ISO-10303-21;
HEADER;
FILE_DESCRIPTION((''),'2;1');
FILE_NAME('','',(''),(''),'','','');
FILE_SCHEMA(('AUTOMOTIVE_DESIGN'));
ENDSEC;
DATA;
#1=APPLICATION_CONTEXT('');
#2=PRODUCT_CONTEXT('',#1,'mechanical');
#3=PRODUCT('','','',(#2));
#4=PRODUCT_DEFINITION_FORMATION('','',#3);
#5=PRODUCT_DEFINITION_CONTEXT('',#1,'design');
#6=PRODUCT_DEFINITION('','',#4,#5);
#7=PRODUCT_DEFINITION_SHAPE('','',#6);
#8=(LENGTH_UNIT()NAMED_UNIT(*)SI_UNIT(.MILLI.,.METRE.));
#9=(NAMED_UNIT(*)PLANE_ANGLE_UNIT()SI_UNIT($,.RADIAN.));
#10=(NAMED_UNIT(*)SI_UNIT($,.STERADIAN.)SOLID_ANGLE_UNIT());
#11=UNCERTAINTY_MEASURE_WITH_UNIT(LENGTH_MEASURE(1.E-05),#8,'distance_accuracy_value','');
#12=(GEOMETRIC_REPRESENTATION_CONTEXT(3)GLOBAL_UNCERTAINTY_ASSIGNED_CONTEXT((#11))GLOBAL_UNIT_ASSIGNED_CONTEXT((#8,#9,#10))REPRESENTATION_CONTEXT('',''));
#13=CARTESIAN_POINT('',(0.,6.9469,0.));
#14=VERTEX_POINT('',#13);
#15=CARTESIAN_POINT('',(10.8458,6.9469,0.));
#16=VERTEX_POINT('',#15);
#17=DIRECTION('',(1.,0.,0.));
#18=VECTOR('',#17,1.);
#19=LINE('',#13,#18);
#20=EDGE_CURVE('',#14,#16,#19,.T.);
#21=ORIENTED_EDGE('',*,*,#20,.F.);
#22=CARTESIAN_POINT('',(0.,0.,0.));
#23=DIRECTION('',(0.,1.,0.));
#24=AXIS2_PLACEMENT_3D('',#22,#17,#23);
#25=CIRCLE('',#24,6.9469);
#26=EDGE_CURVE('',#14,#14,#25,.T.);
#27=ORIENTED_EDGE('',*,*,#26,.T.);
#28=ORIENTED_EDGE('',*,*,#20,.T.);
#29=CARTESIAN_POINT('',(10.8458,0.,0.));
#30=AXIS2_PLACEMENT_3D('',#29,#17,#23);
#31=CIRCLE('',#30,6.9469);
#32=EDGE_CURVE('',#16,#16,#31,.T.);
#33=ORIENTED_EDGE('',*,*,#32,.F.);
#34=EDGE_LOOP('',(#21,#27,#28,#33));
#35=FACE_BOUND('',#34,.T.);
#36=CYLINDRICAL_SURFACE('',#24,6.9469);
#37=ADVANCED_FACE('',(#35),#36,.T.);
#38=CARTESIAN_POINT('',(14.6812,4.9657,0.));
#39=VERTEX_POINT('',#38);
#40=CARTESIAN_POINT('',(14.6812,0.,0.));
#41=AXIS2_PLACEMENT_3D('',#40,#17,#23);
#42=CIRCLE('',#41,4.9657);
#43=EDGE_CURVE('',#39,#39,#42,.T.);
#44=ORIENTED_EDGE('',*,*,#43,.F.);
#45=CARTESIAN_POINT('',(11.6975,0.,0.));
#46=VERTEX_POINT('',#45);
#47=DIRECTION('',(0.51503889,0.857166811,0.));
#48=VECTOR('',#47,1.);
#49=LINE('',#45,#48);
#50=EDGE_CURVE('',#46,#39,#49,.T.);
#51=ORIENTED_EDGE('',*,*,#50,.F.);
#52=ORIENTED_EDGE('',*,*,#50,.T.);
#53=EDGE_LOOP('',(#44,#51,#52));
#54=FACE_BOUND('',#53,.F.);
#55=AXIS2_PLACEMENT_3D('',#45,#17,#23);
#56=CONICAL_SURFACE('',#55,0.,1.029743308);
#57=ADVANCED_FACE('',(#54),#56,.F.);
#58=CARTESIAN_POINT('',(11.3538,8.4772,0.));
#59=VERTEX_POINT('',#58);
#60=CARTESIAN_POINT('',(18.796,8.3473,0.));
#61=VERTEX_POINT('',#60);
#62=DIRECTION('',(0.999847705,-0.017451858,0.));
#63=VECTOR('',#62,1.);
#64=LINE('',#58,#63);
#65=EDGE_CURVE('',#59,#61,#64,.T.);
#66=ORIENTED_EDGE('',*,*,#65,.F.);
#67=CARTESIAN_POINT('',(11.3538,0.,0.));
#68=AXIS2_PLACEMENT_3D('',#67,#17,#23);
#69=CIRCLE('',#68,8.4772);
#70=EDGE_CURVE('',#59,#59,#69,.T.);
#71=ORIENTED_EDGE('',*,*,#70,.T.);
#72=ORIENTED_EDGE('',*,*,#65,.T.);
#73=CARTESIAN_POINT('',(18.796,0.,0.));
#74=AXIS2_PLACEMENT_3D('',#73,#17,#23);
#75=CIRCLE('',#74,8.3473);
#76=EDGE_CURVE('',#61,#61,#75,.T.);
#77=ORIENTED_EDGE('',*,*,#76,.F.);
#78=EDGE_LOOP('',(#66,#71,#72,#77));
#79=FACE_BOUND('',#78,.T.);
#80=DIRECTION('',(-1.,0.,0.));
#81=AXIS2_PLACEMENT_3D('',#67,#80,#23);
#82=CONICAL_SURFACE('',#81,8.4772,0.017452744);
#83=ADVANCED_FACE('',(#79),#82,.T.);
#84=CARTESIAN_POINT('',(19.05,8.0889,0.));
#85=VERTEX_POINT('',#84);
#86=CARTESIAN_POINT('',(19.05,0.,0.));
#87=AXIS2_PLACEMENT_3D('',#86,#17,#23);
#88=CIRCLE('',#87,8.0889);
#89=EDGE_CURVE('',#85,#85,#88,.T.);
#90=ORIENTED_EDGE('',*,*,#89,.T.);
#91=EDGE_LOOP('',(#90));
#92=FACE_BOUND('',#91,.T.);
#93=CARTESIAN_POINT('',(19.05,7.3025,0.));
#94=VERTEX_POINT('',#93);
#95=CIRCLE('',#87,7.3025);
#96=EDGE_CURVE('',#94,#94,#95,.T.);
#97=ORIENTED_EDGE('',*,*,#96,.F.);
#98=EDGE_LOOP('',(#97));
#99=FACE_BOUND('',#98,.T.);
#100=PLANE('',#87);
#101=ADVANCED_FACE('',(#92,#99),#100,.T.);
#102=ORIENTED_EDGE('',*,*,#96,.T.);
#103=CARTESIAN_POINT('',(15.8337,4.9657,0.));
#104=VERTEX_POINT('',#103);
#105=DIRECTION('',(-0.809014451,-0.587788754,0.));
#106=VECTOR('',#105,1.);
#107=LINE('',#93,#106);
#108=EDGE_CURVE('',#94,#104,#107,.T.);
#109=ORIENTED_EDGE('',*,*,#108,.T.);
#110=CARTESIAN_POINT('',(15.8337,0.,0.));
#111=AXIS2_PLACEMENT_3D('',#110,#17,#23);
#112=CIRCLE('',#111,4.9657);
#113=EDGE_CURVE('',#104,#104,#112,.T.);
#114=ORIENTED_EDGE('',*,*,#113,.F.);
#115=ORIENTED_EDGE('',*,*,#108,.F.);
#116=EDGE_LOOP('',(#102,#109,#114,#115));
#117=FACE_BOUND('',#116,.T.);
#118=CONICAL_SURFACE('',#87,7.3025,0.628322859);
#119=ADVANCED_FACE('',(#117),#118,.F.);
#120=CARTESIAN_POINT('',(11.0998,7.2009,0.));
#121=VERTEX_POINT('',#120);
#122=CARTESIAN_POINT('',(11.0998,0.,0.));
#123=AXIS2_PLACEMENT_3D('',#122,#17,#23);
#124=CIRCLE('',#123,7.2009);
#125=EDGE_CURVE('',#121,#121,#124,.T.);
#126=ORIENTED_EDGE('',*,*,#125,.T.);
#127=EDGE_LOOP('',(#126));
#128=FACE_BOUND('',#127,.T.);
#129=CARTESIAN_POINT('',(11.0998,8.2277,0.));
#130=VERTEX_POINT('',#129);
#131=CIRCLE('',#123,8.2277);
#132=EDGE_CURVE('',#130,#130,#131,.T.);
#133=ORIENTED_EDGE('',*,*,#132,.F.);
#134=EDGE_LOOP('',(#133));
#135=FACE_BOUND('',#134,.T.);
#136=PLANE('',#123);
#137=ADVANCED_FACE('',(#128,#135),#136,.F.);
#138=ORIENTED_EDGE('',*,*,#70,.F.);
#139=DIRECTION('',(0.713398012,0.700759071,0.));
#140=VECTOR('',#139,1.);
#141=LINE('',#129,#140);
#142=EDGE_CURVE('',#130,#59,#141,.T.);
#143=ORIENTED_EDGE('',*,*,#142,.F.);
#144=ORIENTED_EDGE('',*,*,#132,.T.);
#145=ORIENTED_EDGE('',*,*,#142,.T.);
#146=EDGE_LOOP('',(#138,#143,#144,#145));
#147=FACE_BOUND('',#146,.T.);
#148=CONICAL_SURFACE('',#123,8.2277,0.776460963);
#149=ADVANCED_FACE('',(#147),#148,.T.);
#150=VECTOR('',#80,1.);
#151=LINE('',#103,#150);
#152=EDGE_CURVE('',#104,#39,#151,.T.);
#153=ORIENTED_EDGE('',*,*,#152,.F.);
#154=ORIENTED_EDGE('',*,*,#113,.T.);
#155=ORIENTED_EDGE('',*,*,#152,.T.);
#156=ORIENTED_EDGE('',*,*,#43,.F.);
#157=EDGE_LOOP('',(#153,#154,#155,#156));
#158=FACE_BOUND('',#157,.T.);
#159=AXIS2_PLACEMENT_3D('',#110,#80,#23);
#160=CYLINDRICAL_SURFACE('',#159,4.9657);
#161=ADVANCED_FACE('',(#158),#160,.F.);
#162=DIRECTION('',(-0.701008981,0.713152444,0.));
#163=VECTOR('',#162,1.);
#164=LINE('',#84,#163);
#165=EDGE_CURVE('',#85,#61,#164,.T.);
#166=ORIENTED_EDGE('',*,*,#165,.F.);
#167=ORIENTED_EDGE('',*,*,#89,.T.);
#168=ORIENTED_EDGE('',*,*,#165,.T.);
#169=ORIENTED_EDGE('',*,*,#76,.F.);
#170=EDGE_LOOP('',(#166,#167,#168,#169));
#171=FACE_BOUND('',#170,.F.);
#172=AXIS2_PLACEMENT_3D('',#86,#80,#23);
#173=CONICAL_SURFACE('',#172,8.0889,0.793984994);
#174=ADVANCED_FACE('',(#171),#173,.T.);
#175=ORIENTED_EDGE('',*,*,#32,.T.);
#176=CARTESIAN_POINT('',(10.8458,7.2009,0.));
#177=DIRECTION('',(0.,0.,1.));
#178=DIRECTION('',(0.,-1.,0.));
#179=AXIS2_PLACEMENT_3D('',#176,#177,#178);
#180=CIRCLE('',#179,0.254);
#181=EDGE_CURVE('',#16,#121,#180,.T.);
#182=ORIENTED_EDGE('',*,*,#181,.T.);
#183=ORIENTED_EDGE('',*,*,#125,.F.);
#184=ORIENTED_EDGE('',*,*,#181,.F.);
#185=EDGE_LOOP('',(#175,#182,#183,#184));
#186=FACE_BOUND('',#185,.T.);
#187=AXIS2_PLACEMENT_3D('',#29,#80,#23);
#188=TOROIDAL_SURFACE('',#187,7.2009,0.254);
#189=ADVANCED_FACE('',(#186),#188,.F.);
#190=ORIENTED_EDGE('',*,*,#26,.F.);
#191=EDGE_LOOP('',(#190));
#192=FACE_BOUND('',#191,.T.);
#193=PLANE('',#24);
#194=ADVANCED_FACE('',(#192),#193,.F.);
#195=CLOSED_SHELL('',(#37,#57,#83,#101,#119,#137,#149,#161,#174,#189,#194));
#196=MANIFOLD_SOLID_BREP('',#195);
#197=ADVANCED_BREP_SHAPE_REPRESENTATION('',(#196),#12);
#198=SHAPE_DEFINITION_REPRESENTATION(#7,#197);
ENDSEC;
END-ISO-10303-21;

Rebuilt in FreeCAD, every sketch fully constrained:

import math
import FreeCAD as App
import Part
import Sketcher
from FreeCAD import Vector
Q = App.Units.Quantity

doc = App.newDocument("Part")
body = doc.addObject("PartDesign::Body", "Body")

# Sketch on XY plane
sketch1 = body.newObject("Sketcher::SketchObject", "Sketch")
sketch1.AttachmentSupport = (doc.getObject("XY_Plane"), [""])
sketch1.MapMode = "FlatFace"
sketch1.addGeometry([
    Part.LineSegment(Vector(0, 6.95, 0), Vector(0, 0, 0)),  # 0
    Part.LineSegment(Vector(0, 0, 0), Vector(11.7, 0, 0)),  # 1
    Part.LineSegment(Vector(11.7, 0, 0), Vector(14.68, 4.97, 0)),  # 2
    Part.LineSegment(Vector(14.68, 4.97, 0), Vector(15.83, 4.97, 0)),  # 3
    Part.LineSegment(Vector(15.83, 4.97, 0), Vector(19.05, 7.3, 0)),  # 4
    Part.LineSegment(Vector(19.05, 7.3, 0), Vector(19.05, 8.09, 0)),  # 5
    Part.LineSegment(Vector(19.05, 8.09, 0), Vector(18.8, 8.35, 0)),  # 6
    Part.LineSegment(Vector(18.8, 8.35, 0), Vector(11.35, 8.48, 0)),  # 7
    Part.LineSegment(Vector(11.35, 8.48, 0), Vector(11.1, 8.23, 0)),  # 8
    Part.LineSegment(Vector(11.1, 8.23, 0), Vector(11.1, 7.2, 0)),  # 9
    Part.ArcOfCircle(Part.Circle(Vector(10.85, 7.2, 0), Vector(0, 0, 1), 0.25), math.radians(-90), math.radians(0)),  # 10
    Part.LineSegment(Vector(10.85, 6.95, 0), Vector(0, 6.95, 0)),  # 11
], False)
sketch1.addConstraint([
    Sketcher.Constraint("Coincident", 0, 2, 1, 1),
    Sketcher.Constraint("Coincident", 1, 2, 2, 1),
    Sketcher.Constraint("Coincident", 2, 2, 3, 1),
    Sketcher.Constraint("Coincident", 3, 2, 4, 1),
    Sketcher.Constraint("Coincident", 4, 2, 5, 1),
    Sketcher.Constraint("Coincident", 5, 2, 6, 1),
    Sketcher.Constraint("Coincident", 6, 2, 7, 1),
    Sketcher.Constraint("Coincident", 7, 2, 8, 1),
    Sketcher.Constraint("Coincident", 8, 2, 9, 1),
    Sketcher.Constraint("Tangent", 9, 2, 10, 2),
    Sketcher.Constraint("Tangent", 10, 1, 11, 1),
    Sketcher.Constraint("Coincident", 11, 2, 0, 1),
    Sketcher.Constraint("Vertical", 0),
    Sketcher.Constraint("Horizontal", 1),
    Sketcher.Constraint("Horizontal", 3),
    Sketcher.Constraint("Vertical", 5),
    Sketcher.Constraint("Vertical", 9),
    Sketcher.Constraint("Horizontal", 11),
    Sketcher.Constraint("Coincident", 0, 2, -1, 1),
    Sketcher.Constraint("Perpendicular", 6, 8),
    Sketcher.Constraint("Radius", 10, Q("0.01 in")),
    Sketcher.Constraint("Angle", 2, Q("59 deg")),
    Sketcher.Constraint("DistanceX", -1, 1, 4, 2, Q("0.75 in")),
    Sketcher.Constraint("DistanceX", 6, 2, 5, 2, Q("0.01 in")),
    Sketcher.Constraint("DistanceX", 8, 2, 7, 2, Q("0.01 in")),
    Sketcher.Constraint("DistanceY", 0, 2, 0, 1, Q("0.2735 in")),
    Sketcher.Constraint("Angle", 4, Q("36.0002 deg")),
    Sketcher.Constraint("Angle", 7, Q("179 deg")),
    Sketcher.Constraint("DistanceX", 2, 2, 4, 2, Q("0.172 in")),
    Sketcher.Constraint("DistanceX", 10, 3, 6, 2, Q("0.313 in")),
    Sketcher.Constraint("DistanceY", -1, 1, 2, 2, Q("0.1955 in")),
    Sketcher.Constraint("DistanceY", -1, 1, 4, 2, Q("0.2875 in")),
    Sketcher.Constraint("DistanceY", 5, 1, 5, 2, 0.7864),
    Sketcher.Constraint("DistanceY", 9, 2, 9, 1, 1.0268),
])
revolution = body.newObject("PartDesign::Revolution", "Revolution")
revolution.Profile = sketch1
revolution.ReferenceAxis = (sketch1, ["H_Axis"])
revolution.Angle = 360

doc.recompute()
